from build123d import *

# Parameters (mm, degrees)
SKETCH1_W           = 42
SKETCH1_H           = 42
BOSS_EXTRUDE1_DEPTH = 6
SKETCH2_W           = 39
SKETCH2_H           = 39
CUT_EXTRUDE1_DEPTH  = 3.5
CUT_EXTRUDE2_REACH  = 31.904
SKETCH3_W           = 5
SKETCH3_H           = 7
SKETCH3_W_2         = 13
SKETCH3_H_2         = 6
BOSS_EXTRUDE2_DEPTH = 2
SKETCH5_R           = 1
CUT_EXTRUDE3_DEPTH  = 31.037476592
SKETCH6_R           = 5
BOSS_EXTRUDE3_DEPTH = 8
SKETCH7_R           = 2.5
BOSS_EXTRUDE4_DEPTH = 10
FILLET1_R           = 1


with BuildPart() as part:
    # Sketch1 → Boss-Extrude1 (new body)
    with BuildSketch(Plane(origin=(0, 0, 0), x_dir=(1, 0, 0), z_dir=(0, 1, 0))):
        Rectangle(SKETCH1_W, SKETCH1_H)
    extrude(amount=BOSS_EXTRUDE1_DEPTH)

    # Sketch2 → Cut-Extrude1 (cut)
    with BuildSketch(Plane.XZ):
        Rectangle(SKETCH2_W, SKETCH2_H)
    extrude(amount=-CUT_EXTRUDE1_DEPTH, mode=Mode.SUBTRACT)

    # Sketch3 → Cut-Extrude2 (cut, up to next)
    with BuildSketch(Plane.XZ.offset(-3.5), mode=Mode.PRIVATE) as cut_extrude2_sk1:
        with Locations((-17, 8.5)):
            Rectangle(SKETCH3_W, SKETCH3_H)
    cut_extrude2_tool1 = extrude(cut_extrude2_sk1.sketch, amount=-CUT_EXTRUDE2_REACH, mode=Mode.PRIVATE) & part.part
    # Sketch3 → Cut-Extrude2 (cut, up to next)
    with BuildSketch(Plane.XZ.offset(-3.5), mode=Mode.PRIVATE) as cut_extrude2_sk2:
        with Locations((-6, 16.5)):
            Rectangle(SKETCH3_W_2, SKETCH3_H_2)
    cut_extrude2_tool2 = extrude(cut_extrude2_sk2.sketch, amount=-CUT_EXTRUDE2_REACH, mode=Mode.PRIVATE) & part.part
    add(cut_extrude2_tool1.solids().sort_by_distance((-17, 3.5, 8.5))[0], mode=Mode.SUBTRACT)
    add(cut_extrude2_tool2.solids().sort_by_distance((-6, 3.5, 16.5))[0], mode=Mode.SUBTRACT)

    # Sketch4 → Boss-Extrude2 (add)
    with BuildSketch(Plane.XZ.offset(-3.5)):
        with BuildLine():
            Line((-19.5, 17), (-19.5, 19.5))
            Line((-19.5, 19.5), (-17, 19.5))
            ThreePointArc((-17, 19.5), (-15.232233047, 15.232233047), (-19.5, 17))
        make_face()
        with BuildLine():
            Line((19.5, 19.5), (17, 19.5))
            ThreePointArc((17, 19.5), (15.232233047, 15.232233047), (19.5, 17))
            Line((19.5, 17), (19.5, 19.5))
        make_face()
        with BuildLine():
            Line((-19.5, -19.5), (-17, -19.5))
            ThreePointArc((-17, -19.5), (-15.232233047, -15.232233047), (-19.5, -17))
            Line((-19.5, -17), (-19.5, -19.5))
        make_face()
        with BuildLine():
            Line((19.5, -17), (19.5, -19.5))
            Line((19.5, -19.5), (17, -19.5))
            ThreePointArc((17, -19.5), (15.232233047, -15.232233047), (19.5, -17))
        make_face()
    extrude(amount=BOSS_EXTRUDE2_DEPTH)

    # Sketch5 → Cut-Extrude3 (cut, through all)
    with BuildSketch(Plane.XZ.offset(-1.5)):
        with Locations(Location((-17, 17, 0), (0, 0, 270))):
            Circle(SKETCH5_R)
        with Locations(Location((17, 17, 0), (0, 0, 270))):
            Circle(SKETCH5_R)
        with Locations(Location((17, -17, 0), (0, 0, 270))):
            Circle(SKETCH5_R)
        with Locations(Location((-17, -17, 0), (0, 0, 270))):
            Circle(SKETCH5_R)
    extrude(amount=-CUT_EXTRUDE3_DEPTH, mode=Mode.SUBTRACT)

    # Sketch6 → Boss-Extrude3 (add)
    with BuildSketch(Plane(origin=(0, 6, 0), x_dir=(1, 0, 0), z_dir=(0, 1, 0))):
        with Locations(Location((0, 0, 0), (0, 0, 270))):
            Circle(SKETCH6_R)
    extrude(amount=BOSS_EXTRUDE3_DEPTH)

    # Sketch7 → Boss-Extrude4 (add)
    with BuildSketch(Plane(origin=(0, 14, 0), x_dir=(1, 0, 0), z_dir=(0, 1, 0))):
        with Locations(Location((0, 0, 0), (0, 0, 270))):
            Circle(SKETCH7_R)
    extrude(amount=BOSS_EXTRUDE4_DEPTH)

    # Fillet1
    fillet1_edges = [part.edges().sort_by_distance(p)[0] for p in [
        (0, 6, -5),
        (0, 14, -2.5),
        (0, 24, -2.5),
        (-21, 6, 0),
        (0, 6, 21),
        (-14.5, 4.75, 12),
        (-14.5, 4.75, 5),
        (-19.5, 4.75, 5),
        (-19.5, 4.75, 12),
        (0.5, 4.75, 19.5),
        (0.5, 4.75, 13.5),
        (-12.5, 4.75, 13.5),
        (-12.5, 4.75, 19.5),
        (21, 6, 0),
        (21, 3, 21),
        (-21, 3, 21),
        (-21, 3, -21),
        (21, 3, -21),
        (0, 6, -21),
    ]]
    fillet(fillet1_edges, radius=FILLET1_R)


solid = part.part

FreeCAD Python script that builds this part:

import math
import FreeCAD as App
import Part
import Sketcher
from FreeCAD import Vector
Q = App.Units.Quantity


def edges_at(feature, points):
    """Names of the edges that pass closest to the given points."""
    edges = feature.Shape.Edges
    near = lambda p: min(range(len(edges)), key=lambda i: edges[i].distToShape(Part.Vertex(*p))[0])
    return sorted({f"Edge{near(p) + 1}" for p in points})

doc = App.newDocument("Part")
body = doc.addObject("PartDesign::Body", "Body")

sketch1 = body.newObject("Sketcher::SketchObject", "Sketch")
sketch1.AttachmentSupport = (doc.getObject("XZ_Plane"), [""])
sketch1.MapMode = "FlatFace"
sketch1.addGeometry(Part.LineSegment(Vector(-21, -21, 0), Vector(-21, 21, 0)), False)
sketch1.addGeometry(Part.LineSegment(Vector(-21, 21, 0), Vector(21, 21, 0)), False)
sketch1.addGeometry(Part.LineSegment(Vector(21, 21, 0), Vector(21, -21, 0)), False)
sketch1.addGeometry(Part.LineSegment(Vector(21, -21, 0), Vector(-21, -21, 0)), False)
sketch1.addConstraint(Sketcher.Constraint("Coincident", 0, 2, 1, 1))
sketch1.addConstraint(Sketcher.Constraint("Coincident", 1, 2, 2, 1))
sketch1.addConstraint(Sketcher.Constraint("Coincident", 2, 2, 3, 1))
sketch1.addConstraint(Sketcher.Constraint("Coincident", 3, 2, 0, 1))
sketch1.addConstraint(Sketcher.Constraint("Vertical", 0))
sketch1.addConstraint(Sketcher.Constraint("Horizontal", 1))
sketch1.addConstraint(Sketcher.Constraint("Vertical", 2))
sketch1.addConstraint(Sketcher.Constraint("Horizontal", 3))
sketch1.addConstraint(Sketcher.Constraint("Symmetric", 0, 2, 2, 2, -1, 1))
sketch1.addConstraint(Sketcher.Constraint("Equal", 3, 0))
sketch1.addConstraint(Sketcher.Constraint("DistanceX", 1, 1, 1, 2, Q("42 mm")))
pad1 = body.newObject("PartDesign::Pad", "Pad")
pad1.Profile = sketch1
pad1.Length = 6
pad1.Reversed = True

sketch2 = body.newObject("Sketcher::SketchObject", "Sketch001")
sketch2.AttachmentSupport = (doc.getObject("XZ_Plane"), [""])
sketch2.MapMode = "FlatFace"
sketch2.addGeometry(Part.LineSegment(Vector(-19.5, 19.5, 0), Vector(-19.5, -19.5, 0)), False)
sketch2.addGeometry(Part.LineSegment(Vector(-19.5, -19.5, 0), Vector(19.5, -19.5, 0)), False)
sketch2.addGeometry(Part.LineSegment(Vector(19.5, -19.5, 0), Vector(19.5, 19.5, 0)), False)
sketch2.addGeometry(Part.LineSegment(Vector(19.5, 19.5, 0), Vector(-19.5, 19.5, 0)), False)
sketch2.addConstraint(Sketcher.Constraint("Coincident", 0, 2, 1, 1))
sketch2.addConstraint(Sketcher.Constraint("Coincident", 1, 2, 2, 1))
sketch2.addConstraint(Sketcher.Constraint("Coincident", 2, 2, 3, 1))
sketch2.addConstraint(Sketcher.Constraint("Coincident", 3, 2, 0, 1))
sketch2.addConstraint(Sketcher.Constraint("Vertical", 0))
sketch2.addConstraint(Sketcher.Constraint("Horizontal", 1))
sketch2.addConstraint(Sketcher.Constraint("Vertical", 2))
sketch2.addConstraint(Sketcher.Constraint("Horizontal", 3))
sketch2.addConstraint(Sketcher.Constraint("Symmetric", 0, 2, 2, 2, -1, 1))
sketch2.addConstraint(Sketcher.Constraint("Equal", 3, 0))
sketch2.addConstraint(Sketcher.Constraint("DistanceX", 1, 1, 1, 2, Q("39 mm")))
pocket1 = body.newObject("PartDesign::Pocket", "Pocket")
pocket1.Profile = sketch2
pocket1.Length = 3.5

sketch3 = body.newObject("Sketcher::SketchObject", "Sketch002")
sketch3.AttachmentSupport = (doc.getObject("XZ_Plane"), [""])
sketch3.MapMode = "FlatFace"
sketch3.AttachmentOffset = App.Placement(Vector(0, 0, -3.5), App.Rotation())
sketch3.addGeometry(Part.LineSegment(Vector(-19.5, 12, 0), Vector(-19.5, 5, 0)), False)
sketch3.addGeometry(Part.LineSegment(Vector(-19.5, 5, 0), Vector(-14.5, 5, 0)), False)
sketch3.addGeometry(Part.LineSegment(Vector(-14.5, 5, 0), Vector(-14.5, 12, 0)), False)
sketch3.addGeometry(Part.LineSegment(Vector(-14.5, 12, 0), Vector(-19.5, 12, 0)), False)
sketch3.addConstraint(Sketcher.Constraint("Coincident", 0, 2, 1, 1))
sketch3.addConstraint(Sketcher.Constraint("Coincident", 1, 2, 2, 1))
sketch3.addConstraint(Sketcher.Constraint("Coincident", 2, 2, 3, 1))
sketch3.addConstraint(Sketcher.Constraint("Coincident", 3, 2, 0, 1))
sketch3.addConstraint(Sketcher.Constraint("Vertical", 0))
sketch3.addConstraint(Sketcher.Constraint("Horizontal", 1))
sketch3.addConstraint(Sketcher.Constraint("Vertical", 2))
sketch3.addConstraint(Sketcher.Constraint("Horizontal", 3))
sketch3.addConstraint(Sketcher.Constraint("DistanceX", 1, 1, 1, 2, Q("5 mm")))
sketch3.addConstraint(Sketcher.Constraint("DistanceY", 0, 2, 0, 1, Q("7 mm")))
sketch3.addConstraint(Sketcher.Constraint("DistanceY", -1, 1, 0, 2, Q("5 mm")))
sketch3.addConstraint(Sketcher.Constraint("DistanceX", 0, 2, -1, 1, Q("19.5 mm")))
pocket2 = body.newObject("PartDesign::Pocket", "Pocket001")
pocket2.Profile = sketch3
pocket2.Type = "UpToFirst"

sketch4 = body.newObject("Sketcher::SketchObject", "Sketch003")
sketch4.AttachmentSupport = (doc.getObject("XZ_Plane"), [""])
sketch4.MapMode = "FlatFace"
sketch4.AttachmentOffset = App.Placement(Vector(0, 0, -3.5), App.Rotation())
sketch4.addGeometry(Part.LineSegment(Vector(-12.5, 19.5, 0), Vector(-12.5, 13.5, 0)), False)
sketch4.addGeometry(Part.LineSegment(Vector(-12.5, 13.5, 0), Vector(0.5, 13.5, 0)), False)
sketch4.addGeometry(Part.LineSegment(Vector(0.5, 13.5, 0), Vector(0.5, 19.5, 0)), False)
sketch4.addGeometry(Part.LineSegment(Vector(0.5, 19.5, 0), Vector(-12.5, 19.5, 0)), False)
sketch4.addConstraint(Sketcher.Constraint("Coincident", 0, 2, 1, 1))
sketch4.addConstraint(Sketcher.Constraint("Coincident", 1, 2, 2, 1))
sketch4.addConstraint(Sketcher.Constraint("Coincident", 2, 2, 3, 1))
sketch4.addConstraint(Sketcher.Constraint("Coincident", 3, 2, 0, 1))
sketch4.addConstraint(Sketcher.Constraint("Vertical", 0))
sketch4.addConstraint(Sketcher.Constraint("Horizontal", 1))
sketch4.addConstraint(Sketcher.Constraint("Vertical", 2))
sketch4.addConstraint(Sketcher.Constraint("Horizontal", 3))
sketch4.addConstraint(Sketcher.Constraint("DistanceX", 1, 1, 1, 2, Q("13 mm")))
sketch4.addConstraint(Sketcher.Constraint("DistanceY", 0, 2, 0, 1, Q("6 mm")))
sketch4.addConstraint(Sketcher.Constraint("DistanceX", 0, 2, -1, 1, Q("12.5 mm")))
sketch4.addConstraint(Sketcher.Constraint("DistanceY", -1, 1, 0, 2, Q("13.5 mm")))
pocket3 = body.newObject("PartDesign::Pocket", "Pocket002")
pocket3.Profile = sketch4
pocket3.Type = "UpToFirst"

sketch5 = body.newObject("Sketcher::SketchObject", "Sketch004")
sketch5.AttachmentSupport = (doc.getObject("XZ_Plane"), [""])
sketch5.MapMode = "FlatFace"
sketch5.AttachmentOffset = App.Placement(Vector(0, 0, -3.5), App.Rotation())
sketch5.addGeometry(Part.LineSegment(Vector(-19.5, 19.5, 0), Vector(-19.5, 17, 0)), False)
sketch5.addGeometry(Part.ArcOfCircle(Part.Circle(Vector(-17, 17, 0), Vector(0, 0, 1), 2.5), math.radians(180), math.radians(450)), False)
sketch5.addGeometry(Part.LineSegment(Vector(-17, 19.5, 0), Vector(-19.5, 19.5, 0)), False)
sketch5.addGeometry(Part.LineSegment(Vector(19.5, 19.5, 0), Vector(17, 19.5, 0)), False)
sketch5.addGeometry(Part.ArcOfCircle(Part.Circle(Vector(17, 17, 0), Vector(0, 0, 1), 2.5), math.radians(90), math.radians(360)), False)
sketch5.addGeometry(Part.LineSegment(Vector(19.5, 17, 0), Vector(19.5, 19.5, 0)), False)
sketch5.addGeometry(Part.LineSegment(Vector(-19.5, -19.5, 0), Vector(-17, -19.5, 0)), False)
sketch5.addGeometry(Part.ArcOfCircle(Part.Circle(Vector(-17, -17, 0), Vector(0, 0, 1), 2.5), math.radians(-90), math.radians(180)), False)
sketch5.addGeometry(Part.LineSegment(Vector(-19.5, -17, 0), Vector(-19.5, -19.5, 0)), False)
sketch5.addGeometry(Part.LineSegment(Vector(19.5, -19.5, 0), Vector(19.5, -17, 0)), False)
sketch5.addGeometry(Part.ArcOfCircle(Part.Circle(Vector(17, -17, 0), Vector(0, 0, 1), 2.5), math.radians(0), math.radians(270)), False)
sketch5.addGeometry(Part.LineSegment(Vector(17, -19.5, 0), Vector(19.5, -19.5, 0)), False)
sketch5.addConstraint(Sketcher.Constraint("Tangent", 0, 2, 1, 1))
sketch5.addConstraint(Sketcher.Constraint("Tangent", 1, 2, 2, 1))
sketch5.addConstraint(Sketcher.Constraint("Coincident", 2, 2, 0, 1))
sketch5.addConstraint(Sketcher.Constraint("Tangent", 3, 2, 4, 1))
sketch5.addConstraint(Sketcher.Constraint("Tangent", 4, 2, 5, 1))
sketch5.addConstraint(Sketcher.Constraint("Coincident", 5, 2, 3, 1))
sketch5.addConstraint(Sketcher.Constraint("Tangent", 6, 2, 7, 1))
sketch5.addConstraint(Sketcher.Constraint("Tangent", 7, 2, 8, 1))
sketch5.addConstraint(Sketcher.Constraint("Coincident", 8, 2, 6, 1))
sketch5.addConstraint(Sketcher.Constraint("Tangent", 9, 2, 10, 1))
sketch5.addConstraint(Sketcher.Constraint("Tangent", 10, 2, 11, 1))
sketch5.addConstraint(Sketcher.Constraint("Coincident", 11, 2, 9, 1))
sketch5.addConstraint(Sketcher.Constraint("Vertical", 0))
sketch5.addConstraint(Sketcher.Constraint("Horizontal", 2))
sketch5.addConstraint(Sketcher.Constraint("Horizontal", 3))
sketch5.addConstraint(Sketcher.Constraint("Vertical", 5))
sketch5.addConstraint(Sketcher.Constraint("Horizontal", 6))
sketch5.addConstraint(Sketcher.Constraint("Vertical", 8))
sketch5.addConstraint(Sketcher.Constraint("Vertical", 9))
sketch5.addConstraint(Sketcher.Constraint("Horizontal", 11))
sketch5.addConstraint(Sketcher.Constraint("Equal", 1, 4))
sketch5.addConstraint(Sketcher.Constraint("Equal", 4, 7))
sketch5.addConstraint(Sketcher.Constraint("Equal", 7, 10))
sketch5.addConstraint(Sketcher.Constraint("Symmetric", 4, 3, 7, 3, -1, 1))
sketch5.addConstraint(Sketcher.Constraint("Symmetric", 1, 3, 10, 3, -1, 1))
sketch5.addConstraint(Sketcher.Constraint("Symmetric", 1, 3, 4, 3, -2))
sketch5.addConstraint(Sketcher.Constraint("Radius", 1, Q("2.5 mm")))
sketch5.addConstraint(Sketcher.Constraint("DistanceX", 1, 3, -1, 1, Q("17 mm")))
sketch5.addConstraint(Sketcher.Constraint("DistanceY", -1, 1, 1, 3, Q("17 mm")))
pad2 = body.newObject("PartDesign::Pad", "Pad001")
pad2.Profile = sketch5
pad2.Length = 2

sketch6 = body.newObject("Sketcher::SketchObject", "Sketch005")
sketch6.AttachmentSupport = (doc.getObject("XZ_Plane"), [""])
sketch6.MapMode = "FlatFace"
sketch6.AttachmentOffset = App.Placement(Vector(0, 0, -1.5), App.Rotation())
sketch6.addGeometry(Part.Circle(Vector(-17, 17, 0), Vector(0, 0, 1), 1), False)
sketch6.addGeometry(Part.Circle(Vector(17, 17, 0), Vector(0, 0, 1), 1), False)
sketch6.addGeometry(Part.Circle(Vector(17, -17, 0), Vector(0, 0, 1), 1), False)
sketch6.addGeometry(Part.Circle(Vector(-17, -17, 0), Vector(0, 0, 1), 1), False)
sketch6.addConstraint(Sketcher.Constraint("Equal", 0, 1))
sketch6.addConstraint(Sketcher.Constraint("Equal", 1, 2))
sketch6.addConstraint(Sketcher.Constraint("Equal", 2, 3))
sketch6.addConstraint(Sketcher.Constraint("Symmetric", 0, 3, 2, 3, -1, 1))
sketch6.addConstraint(Sketcher.Constraint("Symmetric", 1, 3, 3, 3, -1, 1))
sketch6.addConstraint(Sketcher.Constraint("Symmetric", 0, 3, 1, 3, -2))
sketch6.addConstraint(Sketcher.Constraint("Diameter", 0, Q("2 mm")))
sketch6.addConstraint(Sketcher.Constraint("DistanceX", 0, 3, -1, 1, Q("17 mm")))
sketch6.addConstraint(Sketcher.Constraint("DistanceY", -1, 1, 0, 3, Q("17 mm")))
pocket4 = body.newObject("PartDesign::Pocket", "Pocket003")
pocket4.Profile = sketch6
pocket4.Type = "ThroughAll"

sketch7 = body.newObject("Sketcher::SketchObject", "Sketch006")
sketch7.AttachmentSupport = (doc.getObject("XZ_Plane"), [""])
sketch7.MapMode = "FlatFace"
sketch7.AttachmentOffset = App.Placement(Vector(0, 0, -6), App.Rotation())
sketch7.addGeometry(Part.Circle(Vector(0, 0, 0), Vector(0, 0, 1), 5), False)
sketch7.addConstraint(Sketcher.Constraint("Coincident", 0, 3, -1, 1))
sketch7.addConstraint(Sketcher.Constraint("Diameter", 0, Q("10 mm")))
pad3 = body.newObject("PartDesign::Pad", "Pad002")
pad3.Profile = sketch7
pad3.Length = 8
pad3.Reversed = True

sketch8 = body.newObject("Sketcher::SketchObject", "Sketch007")
sketch8.AttachmentSupport = (doc.getObject("XZ_Plane"), [""])
sketch8.MapMode = "FlatFace"
sketch8.AttachmentOffset = App.Placement(Vector(0, 0, -14), App.Rotation())
sketch8.addGeometry(Part.Circle(Vector(0, 0, 0), Vector(0, 0, 1), 2.5), False)
sketch8.addConstraint(Sketcher.Constraint("Coincident", 0, 3, -1, 1))
sketch8.addConstraint(Sketcher.Constraint("Diameter", 0, Q("5 mm")))
pad4 = body.newObject("PartDesign::Pad", "Pad003")
pad4.Profile = sketch8
pad4.Length = 10
pad4.Reversed = True
doc.recompute()

fillet = body.newObject("PartDesign::Fillet", "Fillet")
fillet.Base = (pad4, edges_at(pad4, [
    (0, 6, -5),
    (0, 14, -2.5),
    (0, 24, -2.5),
    (-21, 6, 0),
    (0, 6, 21),
    (-14.5, 4.75, 12),
    (-14.5, 4.75, 5),
    (-19.5, 4.75, 5),
    (-19.5, 4.75, 12),
    (0.5, 4.75, 19.5),
    (0.5, 4.75, 13.5),
    (-12.5, 4.75, 13.5),
    (-12.5, 4.75, 19.5),
    (21, 6, 0),
    (21, 3, 21),
    (-21, 3, 21),
    (-21, 3, -21),
    (21, 3, -21),
    (0, 6, -21),
]))
fillet.Radius = 1

doc.recompute()
